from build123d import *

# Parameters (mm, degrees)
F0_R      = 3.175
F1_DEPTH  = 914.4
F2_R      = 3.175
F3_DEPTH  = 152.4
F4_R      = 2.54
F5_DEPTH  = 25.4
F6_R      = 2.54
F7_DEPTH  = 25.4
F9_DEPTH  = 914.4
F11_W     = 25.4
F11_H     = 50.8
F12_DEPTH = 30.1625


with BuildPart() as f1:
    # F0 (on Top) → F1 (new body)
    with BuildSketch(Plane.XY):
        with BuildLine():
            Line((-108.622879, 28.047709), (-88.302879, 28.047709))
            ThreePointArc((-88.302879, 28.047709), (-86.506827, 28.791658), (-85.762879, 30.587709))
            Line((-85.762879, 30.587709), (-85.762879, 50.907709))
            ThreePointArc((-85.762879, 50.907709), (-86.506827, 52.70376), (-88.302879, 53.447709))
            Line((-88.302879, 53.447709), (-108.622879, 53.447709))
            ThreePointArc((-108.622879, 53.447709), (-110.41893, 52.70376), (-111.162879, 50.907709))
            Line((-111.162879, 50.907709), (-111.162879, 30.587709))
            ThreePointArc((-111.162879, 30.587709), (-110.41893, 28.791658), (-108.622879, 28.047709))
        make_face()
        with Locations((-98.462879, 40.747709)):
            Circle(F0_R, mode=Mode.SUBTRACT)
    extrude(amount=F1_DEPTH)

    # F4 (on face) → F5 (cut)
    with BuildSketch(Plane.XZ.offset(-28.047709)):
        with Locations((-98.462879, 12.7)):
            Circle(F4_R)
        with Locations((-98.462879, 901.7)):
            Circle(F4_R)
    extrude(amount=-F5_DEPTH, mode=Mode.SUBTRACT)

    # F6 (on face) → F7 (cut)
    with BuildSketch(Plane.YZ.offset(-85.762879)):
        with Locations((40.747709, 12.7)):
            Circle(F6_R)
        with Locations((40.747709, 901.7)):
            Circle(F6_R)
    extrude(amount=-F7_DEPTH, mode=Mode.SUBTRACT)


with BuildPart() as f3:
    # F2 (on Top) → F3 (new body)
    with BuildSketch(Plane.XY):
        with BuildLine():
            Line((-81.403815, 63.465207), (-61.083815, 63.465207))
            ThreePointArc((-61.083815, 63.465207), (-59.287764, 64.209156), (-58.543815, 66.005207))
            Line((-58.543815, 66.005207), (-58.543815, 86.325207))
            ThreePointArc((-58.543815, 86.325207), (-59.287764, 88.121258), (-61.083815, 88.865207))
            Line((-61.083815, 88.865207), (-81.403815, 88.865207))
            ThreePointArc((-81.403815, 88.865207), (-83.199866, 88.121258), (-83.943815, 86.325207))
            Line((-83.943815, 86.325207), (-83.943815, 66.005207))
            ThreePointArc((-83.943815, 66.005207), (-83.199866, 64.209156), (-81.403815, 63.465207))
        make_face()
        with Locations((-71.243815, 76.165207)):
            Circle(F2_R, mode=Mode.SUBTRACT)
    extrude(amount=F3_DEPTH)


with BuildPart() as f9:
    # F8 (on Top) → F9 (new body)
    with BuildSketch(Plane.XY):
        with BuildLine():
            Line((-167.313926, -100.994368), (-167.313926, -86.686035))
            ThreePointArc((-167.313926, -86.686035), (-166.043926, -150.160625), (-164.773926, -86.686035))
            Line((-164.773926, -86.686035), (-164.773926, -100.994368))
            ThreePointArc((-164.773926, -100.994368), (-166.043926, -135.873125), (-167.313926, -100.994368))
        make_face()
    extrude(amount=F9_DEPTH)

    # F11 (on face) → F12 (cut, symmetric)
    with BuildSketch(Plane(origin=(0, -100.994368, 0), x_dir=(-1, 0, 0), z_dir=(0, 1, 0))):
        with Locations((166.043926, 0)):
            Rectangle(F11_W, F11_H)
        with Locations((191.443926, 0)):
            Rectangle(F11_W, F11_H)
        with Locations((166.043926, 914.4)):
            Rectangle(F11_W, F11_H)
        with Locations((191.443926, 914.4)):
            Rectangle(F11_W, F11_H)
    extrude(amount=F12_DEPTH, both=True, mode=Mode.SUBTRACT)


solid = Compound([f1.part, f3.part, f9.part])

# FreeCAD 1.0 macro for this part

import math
import FreeCAD as App
import Part
import Sketcher
Q = App.Units.Quantity

doc = App.newDocument("Part")
body = doc.addObject("PartDesign::Body", "Body")

sketch1 = body.newObject("Sketcher::SketchObject", "Sketch")
sketch1.AttachmentSupport = (doc.getObject("XY_Plane"), [""])
sketch1.MapMode = "FlatFace"
sketch1.addGeometry(Part.LineSegment(App.Vector(-108.622879, 28.047709, 0), App.Vector(-88.302879, 28.047709, 0)), False)
sketch1.addGeometry(Part.ArcOfCircle(Part.Circle(App.Vector(-88.302878, 30.587708, 0), App.Vector(0, 0, 1), 2.539999), math.radians(-90.000021), math.radians(0.000021)), False)
sketch1.addGeometry(Part.LineSegment(App.Vector(-85.762879, 30.587709, 0), App.Vector(-85.762879, 50.907709, 0)), False)
sketch1.addGeometry(Part.ArcOfCircle(Part.Circle(App.Vector(-88.302878, 50.90771, 0), App.Vector(0, 0, 1), 2.539999), math.radians(-0.000021), math.radians(90.000021)), False)
sketch1.addGeometry(Part.LineSegment(App.Vector(-88.302879, 53.447709, 0), App.Vector(-108.622879, 53.447709, 0)), False)
sketch1.addGeometry(Part.ArcOfCircle(Part.Circle(App.Vector(-108.622878, 50.907708, 0), App.Vector(0, 0, 1), 2.540001), math.radians(90.000017), math.radians(179.999983)), False)
sketch1.addGeometry(Part.LineSegment(App.Vector(-111.162879, 50.907709, 0), App.Vector(-111.162879, 30.587709, 0)), False)
sketch1.addGeometry(Part.ArcOfCircle(Part.Circle(App.Vector(-108.622878, 30.58771, 0), App.Vector(0, 0, 1), 2.540001), math.radians(-179.999983), math.radians(-90.000017)), False)
sketch1.addGeometry(Part.Circle(App.Vector(-98.462879, 40.747709, 0), App.Vector(0, 0, 1), 3.175), False)
sketch1.addConstraint(Sketcher.Constraint("Tangent", 0, 2, 1, 1))
sketch1.addConstraint(Sketcher.Constraint("Tangent", 1, 2, 2, 1))
sketch1.addConstraint(Sketcher.Constraint("Tangent", 2, 2, 3, 1))
sketch1.addConstraint(Sketcher.Constraint("Tangent", 3, 2, 4, 1))
sketch1.addConstraint(Sketcher.Constraint("Tangent", 4, 2, 5, 1))
sketch1.addConstraint(Sketcher.Constraint("Tangent", 5, 2, 6, 1))
sketch1.addConstraint(Sketcher.Constraint("Tangent", 6, 2, 7, 1))
sketch1.addConstraint(Sketcher.Constraint("Tangent", 7, 2, 0, 1))
sketch1.addConstraint(Sketcher.Constraint("Horizontal", 0))
sketch1.addConstraint(Sketcher.Constraint("Vertical", 2))
sketch1.addConstraint(Sketcher.Constraint("Horizontal", 4))
sketch1.addConstraint(Sketcher.Constraint("Vertical", 6))
sketch1.addConstraint(Sketcher.Constraint("Equal", 1, 3))
sketch1.addConstraint(Sketcher.Constraint("Equal", 3, 5))
sketch1.addConstraint(Sketcher.Constraint("Equal", 5, 7))
sketch1.addConstraint(Sketcher.Constraint("Equal", 4, 2))
sketch1.addConstraint(Sketcher.Constraint("Radius", 1, Q("0.1 in")))
sketch1.addConstraint(Sketcher.Constraint("Diameter", 8, Q("0.25 in")))
sketch1.addConstraint(Sketcher.Constraint("DistanceX", 0, 1, 0, 2, Q("0.8 in")))
sketch1.addConstraint(Sketcher.Constraint("DistanceX", 5, 3, 8, 3, Q("0.4 in")))
sketch1.addConstraint(Sketcher.Constraint("DistanceY", 8, 3, 5, 3, Q("0.4 in")))
sketch1.addConstraint(Sketcher.Constraint("DistanceX", 1, 3, -1, 1, 88.302878))
sketch1.addConstraint(Sketcher.Constraint("DistanceY", -1, 1, 1, 3, 30.587708))
pad1 = body.newObject("PartDesign::Pad", "Pad")
pad1.Profile = sketch1
pad1.Length = Q("36 in")

sketch2 = body.newObject("Sketcher::SketchObject", "Sketch001")
sketch2.AttachmentSupport = (doc.getObject("XZ_Plane"), [""])
sketch2.MapMode = "FlatFace"
sketch2.AttachmentOffset = App.Placement(App.Vector(0, 0, -28.047709), App.Rotation())
sketch2.addGeometry(Part.Circle(App.Vector(-98.462879, 12.7, 0), App.Vector(0, 0, 1), 2.54), False)
sketch2.addGeometry(Part.Circle(App.Vector(-98.462879, 901.7, 0), App.Vector(0, 0, 1), 2.54), False)
sketch2.addConstraint(Sketcher.Constraint("Equal", 0, 1))
sketch2.addConstraint(Sketcher.Constraint("Vertical", 0, 3, 1, 3))
sketch2.addConstraint(Sketcher.Constraint("Diameter", 0, Q("0.2 in")))
sketch2.addConstraint(Sketcher.Constraint("DistanceY", 0, 3, 1, 3, Q("35 in")))
sketch2.addConstraint(Sketcher.Constraint("DistanceY", -1, 1, 0, 3, Q("0.5 in")))
sketch2.addConstraint(Sketcher.Constraint("DistanceX", 0, 3, -1, 1, 98.462879))
pocket1 = body.newObject("PartDesign::Pocket", "Pocket")
pocket1.Profile = sketch2
pocket1.Length = Q("1 in")

sketch3 = body.newObject("Sketcher::SketchObject", "Sketch002")
sketch3.AttachmentSupport = (doc.getObject("YZ_Plane"), [""])
sketch3.MapMode = "FlatFace"
sketch3.AttachmentOffset = App.Placement(App.Vector(0, 0, -85.762879), App.Rotation())
sketch3.addGeometry(Part.Circle(App.Vector(40.747709, 12.7, 0), App.Vector(0, 0, 1), 2.54), False)
sketch3.addGeometry(Part.Circle(App.Vector(40.747709, 901.7, 0), App.Vector(0, 0, 1), 2.54), False)
sketch3.addConstraint(Sketcher.Constraint("Equal", 0, 1))
sketch3.addConstraint(Sketcher.Constraint("Vertical", 0, 3, 1, 3))
sketch3.addConstraint(Sketcher.Constraint("Diameter", 0, Q("0.2 in")))
sketch3.addConstraint(Sketcher.Constraint("DistanceY", 0, 3, 1, 3, Q("35 in")))
sketch3.addConstraint(Sketcher.Constraint("DistanceY", -1, 1, 0, 3, Q("0.5 in")))
sketch3.addConstraint(Sketcher.Constraint("DistanceX", -1, 1, 0, 3, 40.747709))
pocket2 = body.newObject("PartDesign::Pocket", "Pocket001")
pocket2.Profile = sketch3
pocket2.Length = Q("1 in")
body2 = doc.addObject("PartDesign::Body", "Body001")

sketch4 = body2.newObject("Sketcher::SketchObject", "Sketch003")
sketch4.AttachmentSupport = (doc.getObject("XY_Plane001"), [""])
sketch4.MapMode = "FlatFace"
sketch4.addGeometry(Part.LineSegment(App.Vector(-81.403815, 63.465207, 0), App.Vector(-61.083815, 63.465207, 0)), False)
sketch4.addGeometry(Part.ArcOfCircle(Part.Circle(App.Vector(-61.083816, 66.005208, 0), App.Vector(0, 0, 1), 2.540001), math.radians(-89.999983), math.radians(-0.000017)), False)
sketch4.addGeometry(Part.LineSegment(App.Vector(-58.543815, 66.005207, 0), App.Vector(-58.543815, 86.325207, 0)), False)
sketch4.addGeometry(Part.ArcOfCircle(Part.Circle(App.Vector(-61.083816, 86.325206, 0), App.Vector(0, 0, 1), 2.540001), math.radians(0.000017), math.radians(89.999983)), False)
sketch4.addGeometry(Part.LineSegment(App.Vector(-61.083815, 88.865207, 0), App.Vector(-81.403815, 88.865207, 0)), False)
sketch4.addGeometry(Part.ArcOfCircle(Part.Circle(App.Vector(-81.403814, 86.325206, 0), App.Vector(0, 0, 1), 2.540001), math.radians(90.000017), math.radians(179.999983)), False)
sketch4.addGeometry(Part.LineSegment(App.Vector(-83.943815, 86.325207, 0), App.Vector(-83.943815, 66.005207, 0)), False)
sketch4.addGeometry(Part.ArcOfCircle(Part.Circle(App.Vector(-81.403814, 66.005208, 0), App.Vector(0, 0, 1), 2.540001), math.radians(-179.999983), math.radians(-90.000017)), False)
sketch4.addGeometry(Part.Circle(App.Vector(-71.243815, 76.165207, 0), App.Vector(0, 0, 1), 3.175), False)
sketch4.addConstraint(Sketcher.Constraint("Tangent", 0, 2, 1, 1))
sketch4.addConstraint(Sketcher.Constraint("Tangent", 1, 2, 2, 1))
sketch4.addConstraint(Sketcher.Constraint("Tangent", 2, 2, 3, 1))
sketch4.addConstraint(Sketcher.Constraint("Tangent", 3, 2, 4, 1))
sketch4.addConstraint(Sketcher.Constraint("Tangent", 4, 2, 5, 1))
sketch4.addConstraint(Sketcher.Constraint("Tangent", 5, 2, 6, 1))
sketch4.addConstraint(Sketcher.Constraint("Tangent", 6, 2, 7, 1))
sketch4.addConstraint(Sketcher.Constraint("Tangent", 7, 2, 0, 1))
sketch4.addConstraint(Sketcher.Constraint("Horizontal", 0))
sketch4.addConstraint(Sketcher.Constraint("Vertical", 2))
sketch4.addConstraint(Sketcher.Constraint("Horizontal", 4))
sketch4.addConstraint(Sketcher.Constraint("Vertical", 6))
sketch4.addConstraint(Sketcher.Constraint("Equal", 1, 3))
sketch4.addConstraint(Sketcher.Constraint("Equal", 3, 5))
sketch4.addConstraint(Sketcher.Constraint("Equal", 5, 7))
sketch4.addConstraint(Sketcher.Constraint("Equal", 4, 2))
sketch4.addConstraint(Sketcher.Constraint("Radius", 1, Q("0.1 in")))
sketch4.addConstraint(Sketcher.Constraint("Diameter", 8, Q("0.25 in")))
sketch4.addConstraint(Sketcher.Constraint("DistanceX", 0, 1, 0, 2, Q("0.8 in")))
sketch4.addConstraint(Sketcher.Constraint("DistanceX", 8, 3, 1, 3, Q("0.4 in")))
sketch4.addConstraint(Sketcher.Constraint("DistanceY", 1, 3, 8, 3, Q("0.4 in")))
sketch4.addConstraint(Sketcher.Constraint("DistanceX", 1, 3, -1, 1, 61.083816))
sketch4.addConstraint(Sketcher.Constraint("DistanceY", -1, 1, 1, 3, 66.005208))
pad2 = body2.newObject("PartDesign::Pad", "Pad001")
pad2.Profile = sketch4
pad2.Length = Q("6 in")
body3 = doc.addObject("PartDesign::Body", "Body002")

sketch5 = body3.newObject("Sketcher::SketchObject", "Sketch004")
sketch5.AttachmentSupport = (doc.getObject("XY_Plane002"), [""])
sketch5.MapMode = "FlatFace"
sketch5.addGeometry(Part.LineSegment(App.Vector(-167.313926, -100.994368, 0), App.Vector(-167.313926, -86.686035, 0)), False)
sketch5.addGeometry(Part.ArcOfCircle(Part.Circle(App.Vector(-166.043926, -118.410625, 0), App.Vector(0, 0, 1), 31.75), math.radians(92.292443), math.radians(447.707557)), False)
sketch5.addGeometry(Part.LineSegment(App.Vector(-164.773926, -86.686035, 0), App.Vector(-164.773926, -100.994368, 0)), False)
sketch5.addGeometry(Part.ArcOfCircle(Part.Circle(App.Vector(-166.043926, -118.410625, 0), App.Vector(0, 0, 1), 17.4625), math.radians(94.170648), math.radians(445.829352)), False)
sketch5.addConstraint(Sketcher.Constraint("Coincident", 0, 2, 1, 1))
sketch5.addConstraint(Sketcher.Constraint("Coincident", 1, 2, 2, 1))
sketch5.addConstraint(Sketcher.Constraint("Coincident", 2, 2, 3, 2))
sketch5.addConstraint(Sketcher.Constraint("Coincident", 3, 1, 0, 1))
sketch5.addConstraint(Sketcher.Constraint("Vertical", 0))
sketch5.addConstraint(Sketcher.Constraint("Vertical", 2))
sketch5.addConstraint(Sketcher.Constraint("Coincident", 3, 3, 1, 3))
sketch5.addConstraint(Sketcher.Constraint("Horizontal", 0, 2, 1, 2))
sketch5.addConstraint(Sketcher.Constraint("Radius", 1, Q("1.25 in")))
sketch5.addConstraint(Sketcher.Constraint("Radius", 3, Q("0.6875 in")))
sketch5.addConstraint(Sketcher.Constraint("DistanceX", 0, 2, 1, 2, Q("0.1 in")))
sketch5.addConstraint(Sketcher.Constraint("DistanceX", 1, 3, -1, 1, 166.043926))
sketch5.addConstraint(Sketcher.Constraint("DistanceY", 1, 3, -1, 1, 118.410625))
pad3 = body3.newObject("PartDesign::Pad", "Pad002")
pad3.Profile = sketch5
pad3.Length = Q("36 in")

sketch6 = body3.newObject("Sketcher::SketchObject", "Sketch005")
sketch6.AttachmentSupport = (doc.getObject("XZ_Plane002"), [""])
sketch6.MapMode = "FlatFace"
sketch6.AttachmentOffset = App.Placement(App.Vector(0, 0, 100.994368), App.Rotation())
sketch6.addGeometry(Part.LineSegment(App.Vector(-153.343926, 25.4, 0), App.Vector(-153.343926, -25.4, 0)), False)
sketch6.addGeometry(Part.LineSegment(App.Vector(-153.343926, -25.4, 0), App.Vector(-204.143926, -25.4, 0)), False)
sketch6.addGeometry(Part.LineSegment(App.Vector(-204.143926, -25.4, 0), App.Vector(-204.143926, 25.4, 0)), False)
sketch6.addGeometry(Part.LineSegment(App.Vector(-204.143926, 25.4, 0), App.Vector(-153.343926, 25.4, 0)), False)
sketch6.addGeometry(Part.LineSegment(App.Vector(-153.343926, 939.8, 0), App.Vector(-153.343926, 889, 0)), False)
sketch6.addGeometry(Part.LineSegment(App.Vector(-153.343926, 889, 0), App.Vector(-204.143926, 889, 0)), False)
sketch6.addGeometry(Part.LineSegment(App.Vector(-204.143926, 889, 0), App.Vector(-204.143926, 939.8, 0)), False)
sketch6.addGeometry(Part.LineSegment(App.Vector(-204.143926, 939.8, 0), App.Vector(-153.343926, 939.8, 0)), False)
sketch6.addConstraint(Sketcher.Constraint("Coincident", 0, 2, 1, 1))
sketch6.addConstraint(Sketcher.Constraint("Coincident", 1, 2, 2, 1))
sketch6.addConstraint(Sketcher.Constraint("Coincident", 2, 2, 3, 1))
sketch6.addConstraint(Sketcher.Constraint("Coincident", 3, 2, 0, 1))
sketch6.addConstraint(Sketcher.Constraint("Coincident", 4, 2, 5, 1))
sketch6.addConstraint(Sketcher.Constraint("Coincident", 5, 2, 6, 1))
sketch6.addConstraint(Sketcher.Constraint("Coincident", 6, 2, 7, 1))
sketch6.addConstraint(Sketcher.Constraint("Coincident", 7, 2, 4, 1))
sketch6.addConstraint(Sketcher.Constraint("Vertical", 0))
sketch6.addConstraint(Sketcher.Constraint("Horizontal", 1))
sketch6.addConstraint(Sketcher.Constraint("Vertical", 2))
sketch6.addConstraint(Sketcher.Constraint("Horizontal", 3))
sketch6.addConstraint(Sketcher.Constraint("Vertical", 4))
sketch6.addConstraint(Sketcher.Constraint("Horizontal", 5))
sketch6.addConstraint(Sketcher.Constraint("Vertical", 6))
sketch6.addConstraint(Sketcher.Constraint("Horizontal", 7))
sketch6.addConstraint(Sketcher.Constraint("Vertical", 3, 2, 4, 2))
sketch6.addConstraint(Sketcher.Constraint("Vertical", 2, 2, 5, 2))
sketch6.addConstraint(Sketcher.Constraint("Equal", 7, 0))
sketch6.addConstraint(Sketcher.Constraint("Equal", 2, 4))
sketch6.addConstraint(Sketcher.Constraint("DistanceX", 1, 2, 1, 1, Q("2 in")))
sketch6.addConstraint(Sketcher.Constraint("DistanceY", 0, 2, -1, 1, Q("1 in")))
sketch6.addConstraint(Sketcher.Constraint("DistanceY", -1, 1, 4, 2, Q("35 in")))
sketch6.addConstraint(Sketcher.Constraint("DistanceX", 0, 2, -1, 1, 153.343926))
pocket3 = body3.newObject("PartDesign::Pocket", "Pocket002")
pocket3.Profile = sketch6
pocket3.Length = Q("2.375 in")
pocket3.Midplane = True

doc.recompute()
